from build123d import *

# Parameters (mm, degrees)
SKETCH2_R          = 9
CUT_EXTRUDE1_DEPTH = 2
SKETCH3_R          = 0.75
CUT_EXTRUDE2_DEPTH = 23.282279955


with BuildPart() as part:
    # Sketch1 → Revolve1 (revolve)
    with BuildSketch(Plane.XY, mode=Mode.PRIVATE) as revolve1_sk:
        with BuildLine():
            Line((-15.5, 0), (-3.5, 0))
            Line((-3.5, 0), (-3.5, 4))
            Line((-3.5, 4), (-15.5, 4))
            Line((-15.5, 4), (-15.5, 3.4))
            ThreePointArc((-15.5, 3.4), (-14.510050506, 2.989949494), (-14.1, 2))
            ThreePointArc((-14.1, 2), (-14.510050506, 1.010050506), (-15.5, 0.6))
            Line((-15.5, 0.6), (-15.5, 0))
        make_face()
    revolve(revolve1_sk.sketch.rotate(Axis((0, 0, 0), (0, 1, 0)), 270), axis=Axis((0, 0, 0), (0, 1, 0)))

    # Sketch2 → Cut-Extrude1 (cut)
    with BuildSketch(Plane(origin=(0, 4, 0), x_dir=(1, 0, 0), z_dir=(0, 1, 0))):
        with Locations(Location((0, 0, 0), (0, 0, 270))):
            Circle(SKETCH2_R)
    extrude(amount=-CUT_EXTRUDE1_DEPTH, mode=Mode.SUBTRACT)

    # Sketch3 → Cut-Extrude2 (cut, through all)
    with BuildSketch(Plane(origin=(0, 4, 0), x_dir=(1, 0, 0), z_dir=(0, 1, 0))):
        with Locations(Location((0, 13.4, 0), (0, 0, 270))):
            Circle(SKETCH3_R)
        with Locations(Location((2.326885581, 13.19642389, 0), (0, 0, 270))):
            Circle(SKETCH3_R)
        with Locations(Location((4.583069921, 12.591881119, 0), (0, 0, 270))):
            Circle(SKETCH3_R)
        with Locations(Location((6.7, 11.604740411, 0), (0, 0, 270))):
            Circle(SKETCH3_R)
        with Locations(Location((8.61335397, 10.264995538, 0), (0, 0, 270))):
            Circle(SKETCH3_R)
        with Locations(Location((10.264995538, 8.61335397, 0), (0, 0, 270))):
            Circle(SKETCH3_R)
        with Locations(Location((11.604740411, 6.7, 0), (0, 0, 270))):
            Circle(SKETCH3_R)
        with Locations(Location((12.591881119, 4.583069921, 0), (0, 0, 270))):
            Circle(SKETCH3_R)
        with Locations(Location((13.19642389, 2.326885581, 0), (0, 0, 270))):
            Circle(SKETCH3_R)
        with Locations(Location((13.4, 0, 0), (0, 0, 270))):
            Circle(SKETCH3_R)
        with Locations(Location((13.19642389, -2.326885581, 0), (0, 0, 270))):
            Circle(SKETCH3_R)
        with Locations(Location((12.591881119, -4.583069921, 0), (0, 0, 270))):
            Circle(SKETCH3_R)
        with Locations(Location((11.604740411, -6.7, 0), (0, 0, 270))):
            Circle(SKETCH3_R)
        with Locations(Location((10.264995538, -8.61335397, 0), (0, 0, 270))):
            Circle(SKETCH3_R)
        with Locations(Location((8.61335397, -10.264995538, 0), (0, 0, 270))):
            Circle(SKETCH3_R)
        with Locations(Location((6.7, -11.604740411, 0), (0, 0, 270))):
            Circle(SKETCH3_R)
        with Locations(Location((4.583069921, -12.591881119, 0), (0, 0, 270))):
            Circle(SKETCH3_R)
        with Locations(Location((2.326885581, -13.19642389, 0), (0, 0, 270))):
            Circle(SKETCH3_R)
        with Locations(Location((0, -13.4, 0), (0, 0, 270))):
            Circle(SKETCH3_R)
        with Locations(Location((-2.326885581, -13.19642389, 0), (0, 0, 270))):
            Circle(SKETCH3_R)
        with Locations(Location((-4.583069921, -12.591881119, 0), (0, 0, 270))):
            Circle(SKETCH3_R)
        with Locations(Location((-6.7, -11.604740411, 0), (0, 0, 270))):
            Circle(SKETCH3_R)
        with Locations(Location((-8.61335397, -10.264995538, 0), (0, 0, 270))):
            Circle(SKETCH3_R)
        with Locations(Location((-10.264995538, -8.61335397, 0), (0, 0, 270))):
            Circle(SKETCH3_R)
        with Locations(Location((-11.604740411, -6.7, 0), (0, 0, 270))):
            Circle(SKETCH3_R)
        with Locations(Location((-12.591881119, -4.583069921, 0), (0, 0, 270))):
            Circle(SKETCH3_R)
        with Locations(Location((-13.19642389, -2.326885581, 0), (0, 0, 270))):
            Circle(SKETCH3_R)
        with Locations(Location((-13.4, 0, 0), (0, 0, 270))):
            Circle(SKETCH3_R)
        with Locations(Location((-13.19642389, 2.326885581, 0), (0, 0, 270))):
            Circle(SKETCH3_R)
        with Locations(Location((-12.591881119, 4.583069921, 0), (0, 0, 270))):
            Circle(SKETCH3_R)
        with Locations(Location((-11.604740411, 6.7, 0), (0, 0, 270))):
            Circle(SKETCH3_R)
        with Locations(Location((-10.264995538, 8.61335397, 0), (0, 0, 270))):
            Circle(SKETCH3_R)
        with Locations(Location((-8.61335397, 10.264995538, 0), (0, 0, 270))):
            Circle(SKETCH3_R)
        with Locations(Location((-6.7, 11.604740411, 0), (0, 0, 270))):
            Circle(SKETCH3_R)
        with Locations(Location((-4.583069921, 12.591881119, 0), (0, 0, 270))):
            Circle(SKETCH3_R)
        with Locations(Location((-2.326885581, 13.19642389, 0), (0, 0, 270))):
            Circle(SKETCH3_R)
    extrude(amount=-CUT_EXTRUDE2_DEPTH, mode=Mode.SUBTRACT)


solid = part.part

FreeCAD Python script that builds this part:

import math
import FreeCAD as App
import Part
import Sketcher
from FreeCAD import Vector

doc = App.newDocument("Part")
params = doc.addObject("Spreadsheet::Sheet", "Params")
for row, (alias, value) in enumerate([
    ("sketch1_radius", "1.4 mm"),
    ("sketch1_width", "12 mm"),
    ("sketch1_height", "4 mm"),
    ("revolution_angle", "360 deg"),
    ("sketch2_diameter", "18 mm"),
    ("pocket1_length", "2 mm"),
    ("sketch3_diameter", "1.5 mm"),
], start=1):
    params.set(f"A{row}", alias)
    params.set(f"B{row}", "=" + value)
    params.setAlias(f"B{row}", alias)

body = doc.addObject("PartDesign::Body", "Body")

sketch1 = doc.addObject("Sketcher::SketchObject", "Sketch")
body.addObject(sketch1)
sketch1.AttachmentSupport = (doc.XY_Plane, [""])
sketch1.MapMode = "FlatFace"
sketch1.addGeometry(Part.LineSegment(Vector(-15.5, 0, 0), Vector(-3.5, 0, 0)), False)
sketch1.addGeometry(Part.LineSegment(Vector(-3.5, 0, 0), Vector(-3.5, 4, 0)), False)
sketch1.addGeometry(Part.LineSegment(Vector(-3.5, 4, 0), Vector(-15.5, 4, 0)), False)
sketch1.addGeometry(Part.LineSegment(Vector(-15.5, 4, 0), Vector(-15.5, 3.4, 0)), False)
sketch1.addGeometry(Part.ArcOfCircle(Part.Circle(Vector(-15.5, 2, 0), Vector(0, 0, 1), 1.4), math.radians(0), math.radians(90)), False)
sketch1.addGeometry(Part.ArcOfCircle(Part.Circle(Vector(-15.5, 2, 0), Vector(0, 0, 1), 1.4), math.radians(-90), math.radians(0)), False)
sketch1.addGeometry(Part.LineSegment(Vector(-15.5, 0.6, 0), Vector(-15.5, 0, 0)), False)
sketch1.addConstraint(Sketcher.Constraint("Coincident", 0, 2, 1, 1))
sketch1.addConstraint(Sketcher.Constraint("Coincident", 1, 2, 2, 1))
sketch1.addConstraint(Sketcher.Constraint("Coincident", 2, 2, 3, 1))
sketch1.addConstraint(Sketcher.Constraint("Coincident", 3, 2, 4, 2))
sketch1.addConstraint(Sketcher.Constraint("Tangent", 4, 1, 5, 2))
sketch1.addConstraint(Sketcher.Constraint("Coincident", 5, 1, 6, 1))
sketch1.addConstraint(Sketcher.Constraint("Coincident", 6, 2, 0, 1))
sketch1.addConstraint(Sketcher.Constraint("Horizontal", 0))
sketch1.addConstraint(Sketcher.Constraint("Vertical", 1))
sketch1.addConstraint(Sketcher.Constraint("Horizontal", 2))
sketch1.addConstraint(Sketcher.Constraint("Vertical", 3))
sketch1.addConstraint(Sketcher.Constraint("Vertical", 6))
sketch1.addConstraint(Sketcher.Constraint("Equal", 4, 5))
sketch1.addConstraint(Sketcher.Constraint("PointOnObject", 0, 2, -1))
sketch1.addConstraint(Sketcher.Constraint("Horizontal", 5, 3, 4, 1))
sketch1.addConstraint(Sketcher.Constraint("Vertical", 5, 3, 2, 2))
sketch1.addConstraint(Sketcher.Constraint("Vertical", 3, 2, 5, 1))
sketch1.addConstraint(Sketcher.Constraint("Equal", 3, 6))
sketch1.addConstraint(Sketcher.Constraint("Radius", 4, 1.4))
sketch1.addConstraint(Sketcher.Constraint("DistanceX", 0, 1, 0, 2, 12.0))
sketch1.addConstraint(Sketcher.Constraint("DistanceY", 1, 1, 1, 2, 4.0))
sketch1.addConstraint(Sketcher.Constraint("DistanceX", 4, 3, -1, 1, 15.5))
sketch1.setExpression("Constraints[18]", "Params.sketch1_radius")
sketch1.setExpression("Constraints[19]", "Params.sketch1_width")
sketch1.setExpression("Constraints[20]", "Params.sketch1_height")
revolution = doc.addObject("PartDesign::Revolution", "Revolution")
body.addObject(revolution)
revolution.Profile = sketch1
revolution.ReferenceAxis = (sketch1, ["V_Axis"])
revolution.setExpression("Angle", "Params.revolution_angle")

sketch2 = doc.addObject("Sketcher::SketchObject", "Sketch001")
body.addObject(sketch2)
sketch2.AttachmentSupport = (doc.XZ_Plane, [""])
sketch2.MapMode = "FlatFace"
sketch2.AttachmentOffset = App.Placement(Vector(0, 0, -4), App.Rotation())
sketch2.addGeometry(Part.Circle(Vector(0, 0, 0), Vector(0, 0, 1), 9), False)
sketch2.addConstraint(Sketcher.Constraint("Coincident", 0, 3, -1, 1))
sketch2.addConstraint(Sketcher.Constraint("Diameter", 0, 18.0))
sketch2.setExpression("Constraints[1]", "Params.sketch2_diameter")
pocket1 = doc.addObject("PartDesign::Pocket", "Pocket")
body.addObject(pocket1)
pocket1.Profile = sketch2
pocket1.setExpression("Length", "Params.pocket1_length")
pocket1.Reversed = True

sketch3 = doc.addObject("Sketcher::SketchObject", "Sketch002")
body.addObject(sketch3)
sketch3.AttachmentSupport = (doc.XZ_Plane, [""])
sketch3.MapMode = "FlatFace"
sketch3.AttachmentOffset = App.Placement(Vector(0, 0, -4), App.Rotation())
sketch3.addGeometry(Part.Circle(Vector(0, -13.4, 0), Vector(0, 0, 1), 0.8), False)
sketch3.addGeometry(Part.Circle(Vector(2.3, -13.2, 0), Vector(0, 0, 1), 0.8), False)
sketch3.addGeometry(Part.Circle(Vector(4.6, -12.6, 0), Vector(0, 0, 1), 0.8), False)
sketch3.addGeometry(Part.Circle(Vector(6.7, -11.6, 0), Vector(0, 0, 1), 0.8), False)
sketch3.addGeometry(Part.Circle(Vector(8.6, -10.3, 0), Vector(0, 0, 1), 0.8), False)
sketch3.addGeometry(Part.Circle(Vector(10.3, -8.6, 0), Vector(0, 0, 1), 0.8), False)
sketch3.addGeometry(Part.Circle(Vector(11.6, -6.7, 0), Vector(0, 0, 1), 0.8), False)
sketch3.addGeometry(Part.Circle(Vector(12.6, -4.6, 0), Vector(0, 0, 1), 0.8), False)
sketch3.addGeometry(Part.Circle(Vector(13.2, -2.3, 0), Vector(0, 0, 1), 0.8), False)
sketch3.addGeometry(Part.Circle(Vector(13.4, 0, 0), Vector(0, 0, 1), 0.8), False)
sketch3.addGeometry(Part.Circle(Vector(13.2, 2.3, 0), Vector(0, 0, 1), 0.8), False)
sketch3.addGeometry(Part.Circle(Vector(12.6, 4.6, 0), Vector(0, 0, 1), 0.8), False)
sketch3.addGeometry(Part.Circle(Vector(11.6, 6.7, 0), Vector(0, 0, 1), 0.8), False)
sketch3.addGeometry(Part.Circle(Vector(10.3, 8.6, 0), Vector(0, 0, 1), 0.8), False)
sketch3.addGeometry(Part.Circle(Vector(8.6, 10.3, 0), Vector(0, 0, 1), 0.8), False)
sketch3.addGeometry(Part.Circle(Vector(6.7, 11.6, 0), Vector(0, 0, 1), 0.8), False)
sketch3.addGeometry(Part.Circle(Vector(4.6, 12.6, 0), Vector(0, 0, 1), 0.8), False)
sketch3.addGeometry(Part.Circle(Vector(2.3, 13.2, 0), Vector(0, 0, 1), 0.8), False)
sketch3.addGeometry(Part.Circle(Vector(0, 13.4, 0), Vector(0, 0, 1), 0.8), False)
sketch3.addGeometry(Part.Circle(Vector(-2.3, 13.2, 0), Vector(0, 0, 1), 0.8), False)
sketch3.addGeometry(Part.Circle(Vector(-4.6, 12.6, 0), Vector(0, 0, 1), 0.8), False)
sketch3.addGeometry(Part.Circle(Vector(-6.7, 11.6, 0), Vector(0, 0, 1), 0.8), False)
sketch3.addGeometry(Part.Circle(Vector(-8.6, 10.3, 0), Vector(0, 0, 1), 0.8), False)
sketch3.addGeometry(Part.Circle(Vector(-10.3, 8.6, 0), Vector(0, 0, 1), 0.8), False)
sketch3.addGeometry(Part.Circle(Vector(-11.6, 6.7, 0), Vector(0, 0, 1), 0.8), False)
sketch3.addGeometry(Part.Circle(Vector(-12.6, 4.6, 0), Vector(0, 0, 1), 0.8), False)
sketch3.addGeometry(Part.Circle(Vector(-13.2, 2.3, 0), Vector(0, 0, 1), 0.8), False)
sketch3.addGeometry(Part.Circle(Vector(-13.4, 0, 0), Vector(0, 0, 1), 0.8), False)
sketch3.addGeometry(Part.Circle(Vector(-13.2, -2.3, 0), Vector(0, 0, 1), 0.8), False)
sketch3.addGeometry(Part.Circle(Vector(-12.6, -4.6, 0), Vector(0, 0, 1), 0.8), False)
sketch3.addGeometry(Part.Circle(Vector(-11.6, -6.7, 0), Vector(0, 0, 1), 0.8), False)
sketch3.addGeometry(Part.Circle(Vector(-10.3, -8.6, 0), Vector(0, 0, 1), 0.8), False)
sketch3.addGeometry(Part.Circle(Vector(-8.6, -10.3, 0), Vector(0, 0, 1), 0.8), False)
sketch3.addGeometry(Part.Circle(Vector(-6.7, -11.6, 0), Vector(0, 0, 1), 0.8), False)
sketch3.addGeometry(Part.Circle(Vector(-4.6, -12.6, 0), Vector(0, 0, 1), 0.8), False)
sketch3.addGeometry(Part.Circle(Vector(-2.3, -13.2, 0), Vector(0, 0, 1), 0.8), False)
sketch3.addConstraint(Sketcher.Constraint("Equal", 0, 1))
sketch3.addConstraint(Sketcher.Constraint("Equal", 1, 2))
sketch3.addConstraint(Sketcher.Constraint("Equal", 2, 3))
sketch3.addConstraint(Sketcher.Constraint("Equal", 3, 4))
sketch3.addConstraint(Sketcher.Constraint("Equal", 4, 5))
sketch3.addConstraint(Sketcher.Constraint("Equal", 5, 6))
sketch3.addConstraint(Sketcher.Constraint("Equal", 6, 7))
sketch3.addConstraint(Sketcher.Constraint("Equal", 7, 8))
sketch3.addConstraint(Sketcher.Constraint("Equal", 8, 9))
sketch3.addConstraint(Sketcher.Constraint("Equal", 9, 10))
sketch3.addConstraint(Sketcher.Constraint("Equal", 10, 11))
sketch3.addConstraint(Sketcher.Constraint("Equal", 11, 12))
sketch3.addConstraint(Sketcher.Constraint("Equal", 12, 13))
sketch3.addConstraint(Sketcher.Constraint("Equal", 13, 14))
sketch3.addConstraint(Sketcher.Constraint("Equal", 14, 15))
sketch3.addConstraint(Sketcher.Constraint("Equal", 15, 16))
sketch3.addConstraint(Sketcher.Constraint("Equal", 16, 17))
sketch3.addConstraint(Sketcher.Constraint("Equal", 17, 18))
sketch3.addConstraint(Sketcher.Constraint("Equal", 18, 19))
sketch3.addConstraint(Sketcher.Constraint("Equal", 19, 20))
sketch3.addConstraint(Sketcher.Constraint("Equal", 20, 21))
sketch3.addConstraint(Sketcher.Constraint("Equal", 21, 22))
sketch3.addConstraint(Sketcher.Constraint("Equal", 22, 23))
sketch3.addConstraint(Sketcher.Constraint("Equal", 23, 24))
sketch3.addConstraint(Sketcher.Constraint("Equal", 24, 25))
sketch3.addConstraint(Sketcher.Constraint("Equal", 25, 26))
sketch3.addConstraint(Sketcher.Constraint("Equal", 26, 27))
sketch3.addConstraint(Sketcher.Constraint("Equal", 27, 28))
sketch3.addConstraint(Sketcher.Constraint("Equal", 28, 29))
sketch3.addConstraint(Sketcher.Constraint("Equal", 29, 30))
sketch3.addConstraint(Sketcher.Constraint("Equal", 30, 31))
sketch3.addConstraint(Sketcher.Constraint("Equal", 31, 32))
sketch3.addConstraint(Sketcher.Constraint("Equal", 32, 33))
sketch3.addConstraint(Sketcher.Constraint("Equal", 33, 34))
sketch3.addConstraint(Sketcher.Constraint("Equal", 34, 35))
sketch3.addConstraint(Sketcher.Constraint("Symmetric", 0, 3, 18, 3, -1, 1))
sketch3.addConstraint(Sketcher.Constraint("Symmetric", 1, 3, 19, 3, -1, 1))
sketch3.addConstraint(Sketcher.Constraint("Symmetric", 2, 3, 20, 3, -1, 1))
sketch3.addConstraint(Sketcher.Constraint("Symmetric", 3, 3, 21, 3, -1, 1))
sketch3.addConstraint(Sketcher.Constraint("Symmetric", 4, 3, 22, 3, -1, 1))
sketch3.addConstraint(Sketcher.Constraint("Symmetric", 5, 3, 23, 3, -1, 1))
sketch3.addConstraint(Sketcher.Constraint("Symmetric", 6, 3, 24, 3, -1, 1))
sketch3.addConstraint(Sketcher.Constraint("Symmetric", 7, 3, 25, 3, -1, 1))
sketch3.addConstraint(Sketcher.Constraint("Symmetric", 8, 3, 26, 3, -1, 1))
sketch3.addConstraint(Sketcher.Constraint("Symmetric", 9, 3, 27, 3, -1, 1))
sketch3.addConstraint(Sketcher.Constraint("Symmetric", 10, 3, 28, 3, -1, 1))
sketch3.addConstraint(Sketcher.Constraint("Symmetric", 11, 3, 29, 3, -1, 1))
sketch3.addConstraint(Sketcher.Constraint("Symmetric", 12, 3, 30, 3, -1, 1))
sketch3.addConstraint(Sketcher.Constraint("Symmetric", 13, 3, 31, 3, -1, 1))
sketch3.addConstraint(Sketcher.Constraint("Symmetric", 14, 3, 32, 3, -1, 1))
sketch3.addConstraint(Sketcher.Constraint("Symmetric", 15, 3, 33, 3, -1, 1))
sketch3.addConstraint(Sketcher.Constraint("Symmetric", 16, 3, 34, 3, -1, 1))
sketch3.addConstraint(Sketcher.Constraint("Symmetric", 17, 3, 35, 3, -1, 1))
sketch3.addConstraint(Sketcher.Constraint("Symmetric", 17, 3, 19, 3, -2))
sketch3.addConstraint(Sketcher.Constraint("Symmetric", 16, 3, 20, 3, -2))
sketch3.addConstraint(Sketcher.Constraint("Symmetric", 15, 3, 21, 3, -2))
sketch3.addConstraint(Sketcher.Constraint("Symmetric", 14, 3, 22, 3, -2))
sketch3.addConstraint(Sketcher.Constraint("Symmetric", 13, 3, 23, 3, -2))
sketch3.addConstraint(Sketcher.Constraint("Symmetric", 12, 3, 24, 3, -2))
sketch3.addConstraint(Sketcher.Constraint("Symmetric", 11, 3, 25, 3, -2))
sketch3.addConstraint(Sketcher.Constraint("Symmetric", 10, 3, 26, 3, -2))
sketch3.addConstraint(Sketcher.Constraint("PointOnObject", 0, 3, -2))
sketch3.addConstraint(Sketcher.Constraint("PointOnObject", 9, 3, -1))
sketch3.addConstraint(Sketcher.Constraint("Diameter", 0, 1.5))
sketch3.addConstraint(Sketcher.Constraint("DistanceY", 0, 3, -1, 1, 13.4))
sketch3.addConstraint(Sketcher.Constraint("DistanceX", -1, 1, 3, 3, 6.7))
sketch3.addConstraint(Sketcher.Constraint("DistanceY", 6, 3, -1, 1, 6.7))
sketch3.addConstraint(Sketcher.Constraint("DistanceX", -1, 1, 9, 3, 13.4))
sketch3.addConstraint(Sketcher.Constraint("DistanceX", -1, 1, 2, 3, 4.58307))
sketch3.addConstraint(Sketcher.Constraint("DistanceY", 2, 3, -1, 1, 12.591881))
sketch3.addConstraint(Sketcher.Constraint("DistanceY", 3, 3, -1, 1, 11.60474))
sketch3.addConstraint(Sketcher.Constraint("DistanceX", -1, 1, 6, 3, 11.60474))
sketch3.addConstraint(Sketcher.Constraint("DistanceX", -1, 1, 7, 3, 12.591881))
sketch3.addConstraint(Sketcher.Constraint("DistanceY", 7, 3, -1, 1, 4.58307))
sketch3.addConstraint(Sketcher.Constraint("DistanceX", 1, 3, 4, 3, 6.286468))
sketch3.addConstraint(Sketcher.Constraint("DistanceY", 1, 3, 4, 3, 2.931428))
sketch3.addConstraint(Sketcher.Constraint("DistanceX", 4, 3, 5, 3, 1.651642))
sketch3.addConstraint(Sketcher.Constraint("DistanceY", 4, 3, 5, 3, 1.651642))
sketch3.addConstraint(Sketcher.Constraint("DistanceX", 5, 3, 8, 3, 2.931428))
sketch3.addConstraint(Sketcher.Constraint("DistanceY", 5, 3, 8, 3, 6.286468))
sketch3.addConstraint(Sketcher.Constraint("DistanceY", 8, 3, 10, 3, 4.653771))
sketch3.addConstraint(Sketcher.Constraint("DistanceX", 19, 3, 17, 3, 4.653771))
sketch3.setExpression("Constraints[63]", "Params.sketch3_diameter")
pocket2 = doc.addObject("PartDesign::Pocket", "Pocket001")
body.addObject(pocket2)
pocket2.Profile = sketch3
pocket2.Type = "ThroughAll"
pocket2.Reversed = True

doc.recompute()
